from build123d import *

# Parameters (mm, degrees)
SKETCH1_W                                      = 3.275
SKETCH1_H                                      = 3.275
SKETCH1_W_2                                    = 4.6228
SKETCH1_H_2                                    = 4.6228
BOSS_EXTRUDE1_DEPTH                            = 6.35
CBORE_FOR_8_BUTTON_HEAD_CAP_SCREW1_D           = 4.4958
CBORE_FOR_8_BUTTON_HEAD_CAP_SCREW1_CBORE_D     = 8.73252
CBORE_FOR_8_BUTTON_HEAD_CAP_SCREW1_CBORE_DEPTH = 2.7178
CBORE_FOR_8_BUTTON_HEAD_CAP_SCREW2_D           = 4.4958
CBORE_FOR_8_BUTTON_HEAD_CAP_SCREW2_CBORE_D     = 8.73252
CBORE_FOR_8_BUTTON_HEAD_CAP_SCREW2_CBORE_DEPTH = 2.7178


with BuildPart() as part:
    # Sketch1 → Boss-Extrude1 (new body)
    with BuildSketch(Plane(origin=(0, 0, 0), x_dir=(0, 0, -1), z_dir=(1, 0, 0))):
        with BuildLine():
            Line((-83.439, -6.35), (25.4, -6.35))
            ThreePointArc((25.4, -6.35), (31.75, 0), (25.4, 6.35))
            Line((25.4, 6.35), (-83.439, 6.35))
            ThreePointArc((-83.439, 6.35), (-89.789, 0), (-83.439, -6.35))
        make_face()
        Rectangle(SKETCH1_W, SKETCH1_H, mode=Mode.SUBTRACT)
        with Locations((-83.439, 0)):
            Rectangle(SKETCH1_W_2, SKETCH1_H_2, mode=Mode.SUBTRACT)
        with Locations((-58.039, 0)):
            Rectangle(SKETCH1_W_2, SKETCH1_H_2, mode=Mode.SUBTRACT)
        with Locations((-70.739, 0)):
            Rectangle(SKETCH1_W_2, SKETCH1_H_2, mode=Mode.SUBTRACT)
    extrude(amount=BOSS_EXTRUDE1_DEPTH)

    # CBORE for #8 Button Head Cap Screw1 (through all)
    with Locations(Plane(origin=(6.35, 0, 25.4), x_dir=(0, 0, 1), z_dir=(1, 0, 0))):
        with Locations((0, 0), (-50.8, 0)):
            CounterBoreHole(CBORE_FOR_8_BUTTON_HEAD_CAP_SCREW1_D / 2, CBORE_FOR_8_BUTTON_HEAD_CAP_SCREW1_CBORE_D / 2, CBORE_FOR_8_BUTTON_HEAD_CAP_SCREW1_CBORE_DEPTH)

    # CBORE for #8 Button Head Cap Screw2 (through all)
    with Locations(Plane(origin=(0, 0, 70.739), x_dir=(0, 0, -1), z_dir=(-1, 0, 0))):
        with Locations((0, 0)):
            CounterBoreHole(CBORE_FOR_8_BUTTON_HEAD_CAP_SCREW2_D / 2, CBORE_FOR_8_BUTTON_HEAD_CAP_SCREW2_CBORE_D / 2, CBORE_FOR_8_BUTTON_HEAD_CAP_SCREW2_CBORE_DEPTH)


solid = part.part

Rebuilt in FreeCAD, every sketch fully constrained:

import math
import FreeCAD as App
import Part
import Sketcher

V = App.Vector
Q = App.Units.Quantity


def add_polygon(sketch, points):
    """Adds a closed chain of lines whose ends are joined by coincident constraints."""
    first, n = sketch.GeometryCount, len(points)
    for a, b in zip(points, points[1:] + points[:1]):
        sketch.addGeometry(Part.LineSegment(App.Vector(*a, 0), App.Vector(*b, 0)), False)
    for i in range(n):
        sketch.addConstraint(Sketcher.Constraint("Coincident", first + i, 2, first + (i + 1) % n, 1))

doc = App.newDocument("Part")
body = doc.addObject("PartDesign::Body", "Body")

# Sketch on YZ plane
sketch1 = body.newObject("Sketcher::SketchObject", "Sketch")
sketch1.AttachmentSupport = (doc.getObject("YZ_Plane"), [""])
sketch1.MapMode = "FlatFace"
sketch1.addGeometry(Part.LineSegment(V(-6.35, 83.439, 0), V(-6.35, -25.4, 0)), False)  # 0
sketch1.addGeometry(Part.ArcOfCircle(Part.Circle(V(0, -25.4, 0), V(0, 0, 1), 6.35), math.radians(180), math.radians(360)), False)  # 1
sketch1.addGeometry(Part.LineSegment(V(6.35, -25.4, 0), V(6.35, 83.439, 0)), False)  # 2
sketch1.addGeometry(Part.ArcOfCircle(Part.Circle(V(0, 83.439, 0), V(0, 0, 1), 6.35), math.radians(0), math.radians(180)), False)  # 3
add_polygon(sketch1, [(-2.3114, 81.1276), (-2.3114, 85.7504), (2.3114, 85.7504), (2.3114, 81.1276)])  # lines 4-7
add_polygon(sketch1, [(-2.3114, 68.4276), (-2.3114, 73.0504), (2.3114, 73.0504), (2.3114, 68.4276)])  # lines 8-11
add_polygon(sketch1, [(-2.3114, 55.7276), (-2.3114, 60.3504), (2.3114, 60.3504), (2.3114, 55.7276)])  # lines 12-15
add_polygon(sketch1, [(-1.6375, -1.6375), (-1.6375, 1.6375), (1.6375, 1.6375), (1.6375, -1.6375)])  # lines 16-19
sketch1.addConstraint(Sketcher.Constraint("Tangent", 0, 2, 1, 1))
sketch1.addConstraint(Sketcher.Constraint("Tangent", 1, 2, 2, 1))
sketch1.addConstraint(Sketcher.Constraint("Tangent", 2, 2, 3, 1))
sketch1.addConstraint(Sketcher.Constraint("Tangent", 3, 2, 0, 1))
sketch1.addConstraint(Sketcher.Constraint("Vertical", 0))
sketch1.addConstraint(Sketcher.Constraint("Vertical", 2))
sketch1.addConstraint(Sketcher.Constraint("Vertical", 4))
sketch1.addConstraint(Sketcher.Constraint("Horizontal", 5))
sketch1.addConstraint(Sketcher.Constraint("Vertical", 6))
sketch1.addConstraint(Sketcher.Constraint("Horizontal", 7))
sketch1.addConstraint(Sketcher.Constraint("Vertical", 8))
sketch1.addConstraint(Sketcher.Constraint("Horizontal", 9))
sketch1.addConstraint(Sketcher.Constraint("Vertical", 10))
sketch1.addConstraint(Sketcher.Constraint("Horizontal", 11))
sketch1.addConstraint(Sketcher.Constraint("Vertical", 12))
sketch1.addConstraint(Sketcher.Constraint("Horizontal", 13))
sketch1.addConstraint(Sketcher.Constraint("Vertical", 14))
sketch1.addConstraint(Sketcher.Constraint("Horizontal", 15))
sketch1.addConstraint(Sketcher.Constraint("Vertical", 16))
sketch1.addConstraint(Sketcher.Constraint("Horizontal", 17))
sketch1.addConstraint(Sketcher.Constraint("Vertical", 18))
sketch1.addConstraint(Sketcher.Constraint("Horizontal", 19))
sketch1.addConstraint(Sketcher.Constraint("Symmetric", 16, 2, 18, 2, -1, 1))
sketch1.addConstraint(Sketcher.Constraint("PointOnObject", 1, 3, -2))
sketch1.addConstraint(Sketcher.Constraint("Vertical", 7, 2, 8, 2))
sketch1.addConstraint(Sketcher.Constraint("Vertical", 6, 2, 9, 2))
sketch1.addConstraint(Sketcher.Constraint("Vertical", 11, 2, 12, 2))
sketch1.addConstraint(Sketcher.Constraint("Vertical", 10, 2, 13, 2))
sketch1.addConstraint(Sketcher.Constraint("Equal", 15, 4))
sketch1.addConstraint(Sketcher.Constraint("Equal", 6, 8))
sketch1.addConstraint(Sketcher.Constraint("Equal", 10, 12))
sketch1.addConstraint(Sketcher.Constraint("Equal", 19, 16))
sketch1.addConstraint(Sketcher.Constraint("Radius", 1, Q("0.25 in")))
sketch1.addConstraint(Sketcher.Constraint("DistanceY", 1, 3, -1, 1, Q("1 in")))
sketch1.addConstraint(Sketcher.Constraint("DistanceY", 8, 2, 4, 2, Q("0.5 in")))
sketch1.addConstraint(Sketcher.Constraint("DistanceY", 12, 2, 8, 2, Q("0.5 in")))
sketch1.addConstraint(Sketcher.Constraint("DistanceX", 5, 1, 5, 2, Q("0.182 in")))
sketch1.addConstraint(Sketcher.Constraint("DistanceY", 0, 2, 0, 1, Q("4.285 in")))
sketch1.addConstraint(Sketcher.Constraint("DistanceX", 4, 2, -1, 1, Q("0.091 in")))
sketch1.addConstraint(Sketcher.Constraint("DistanceY", -1, 1, 4, 2, Q("3.376 in")))
sketch1.addConstraint(Sketcher.Constraint("DistanceX", 17, 1, 17, 2, 3.275))
pad1 = body.newObject("PartDesign::Pad", "Pad")
pad1.Profile = sketch1
pad1.Length = Q("0.25 in")

# Sketch on YZ plane
sketch2 = body.newObject("Sketcher::SketchObject", "Sketch001")
sketch2.AttachmentSupport = (doc.getObject("YZ_Plane"), [""])
sketch2.MapMode = "FlatFace"
sketch2.AttachmentOffset = App.Placement(V(0, 0, 0.25 * 25.4), App.Rotation())
sketch2.addGeometry(Part.Circle(V(0, 25.4, 0), V(0, 0, 1), 2.2479), False)
sketch2.addGeometry(Part.Circle(V(0, -25.4, 0), V(0, 0, 1), 2.2479), False)
sketch2.addConstraint(Sketcher.Constraint("Equal", 0, 1))
sketch2.addConstraint(Sketcher.Constraint("Symmetric", 0, 3, 1, 3, -1, 1))
sketch2.addConstraint(Sketcher.Constraint("PointOnObject", 0, 3, -2))
sketch2.addConstraint(Sketcher.Constraint("Diameter", 0, Q("0.177 in")))
sketch2.addConstraint(Sketcher.Constraint("DistanceY", -1, 1, 0, 3, Q("1 in")))
doc.recompute()
hole = body.newObject("PartDesign::Hole", "Hole")
hole.Profile = sketch2
hole.ThreadType = "None"
hole.Diameter = Q("0.177 in")
hole.DepthType = "ThroughAll"
hole.HoleCutType = "Counterbore"
hole.HoleCutDiameter = Q("0.3438 in")
hole.HoleCutDepth = Q("0.107 in")

# Sketch on YZ plane
sketch3 = body.newObject("Sketcher::SketchObject", "Sketch002")
sketch3.AttachmentSupport = (doc.getObject("YZ_Plane"), [""])
sketch3.MapMode = "FlatFace"
sketch3.addGeometry(Part.Circle(V(0, 70.739, 0), V(0, 0, 1), 2.2479), False)
sketch3.addConstraint(Sketcher.Constraint("PointOnObject", 0, 3, -2))
sketch3.addConstraint(Sketcher.Constraint("Diameter", 0, Q("0.177 in")))
sketch3.addConstraint(Sketcher.Constraint("DistanceY", -1, 1, 0, 3, Q("2.785 in")))
doc.recompute()
hole2 = body.newObject("PartDesign::Hole", "Hole001")
hole2.Profile = sketch3
hole2.ThreadType = "None"
hole2.Diameter = Q("0.177 in")
hole2.DepthType = "ThroughAll"
hole2.HoleCutType = "Counterbore"
hole2.HoleCutDiameter = Q("0.3438 in")
hole2.HoleCutDepth = Q("0.107 in")
hole2.Reversed = True

doc.recompute()
